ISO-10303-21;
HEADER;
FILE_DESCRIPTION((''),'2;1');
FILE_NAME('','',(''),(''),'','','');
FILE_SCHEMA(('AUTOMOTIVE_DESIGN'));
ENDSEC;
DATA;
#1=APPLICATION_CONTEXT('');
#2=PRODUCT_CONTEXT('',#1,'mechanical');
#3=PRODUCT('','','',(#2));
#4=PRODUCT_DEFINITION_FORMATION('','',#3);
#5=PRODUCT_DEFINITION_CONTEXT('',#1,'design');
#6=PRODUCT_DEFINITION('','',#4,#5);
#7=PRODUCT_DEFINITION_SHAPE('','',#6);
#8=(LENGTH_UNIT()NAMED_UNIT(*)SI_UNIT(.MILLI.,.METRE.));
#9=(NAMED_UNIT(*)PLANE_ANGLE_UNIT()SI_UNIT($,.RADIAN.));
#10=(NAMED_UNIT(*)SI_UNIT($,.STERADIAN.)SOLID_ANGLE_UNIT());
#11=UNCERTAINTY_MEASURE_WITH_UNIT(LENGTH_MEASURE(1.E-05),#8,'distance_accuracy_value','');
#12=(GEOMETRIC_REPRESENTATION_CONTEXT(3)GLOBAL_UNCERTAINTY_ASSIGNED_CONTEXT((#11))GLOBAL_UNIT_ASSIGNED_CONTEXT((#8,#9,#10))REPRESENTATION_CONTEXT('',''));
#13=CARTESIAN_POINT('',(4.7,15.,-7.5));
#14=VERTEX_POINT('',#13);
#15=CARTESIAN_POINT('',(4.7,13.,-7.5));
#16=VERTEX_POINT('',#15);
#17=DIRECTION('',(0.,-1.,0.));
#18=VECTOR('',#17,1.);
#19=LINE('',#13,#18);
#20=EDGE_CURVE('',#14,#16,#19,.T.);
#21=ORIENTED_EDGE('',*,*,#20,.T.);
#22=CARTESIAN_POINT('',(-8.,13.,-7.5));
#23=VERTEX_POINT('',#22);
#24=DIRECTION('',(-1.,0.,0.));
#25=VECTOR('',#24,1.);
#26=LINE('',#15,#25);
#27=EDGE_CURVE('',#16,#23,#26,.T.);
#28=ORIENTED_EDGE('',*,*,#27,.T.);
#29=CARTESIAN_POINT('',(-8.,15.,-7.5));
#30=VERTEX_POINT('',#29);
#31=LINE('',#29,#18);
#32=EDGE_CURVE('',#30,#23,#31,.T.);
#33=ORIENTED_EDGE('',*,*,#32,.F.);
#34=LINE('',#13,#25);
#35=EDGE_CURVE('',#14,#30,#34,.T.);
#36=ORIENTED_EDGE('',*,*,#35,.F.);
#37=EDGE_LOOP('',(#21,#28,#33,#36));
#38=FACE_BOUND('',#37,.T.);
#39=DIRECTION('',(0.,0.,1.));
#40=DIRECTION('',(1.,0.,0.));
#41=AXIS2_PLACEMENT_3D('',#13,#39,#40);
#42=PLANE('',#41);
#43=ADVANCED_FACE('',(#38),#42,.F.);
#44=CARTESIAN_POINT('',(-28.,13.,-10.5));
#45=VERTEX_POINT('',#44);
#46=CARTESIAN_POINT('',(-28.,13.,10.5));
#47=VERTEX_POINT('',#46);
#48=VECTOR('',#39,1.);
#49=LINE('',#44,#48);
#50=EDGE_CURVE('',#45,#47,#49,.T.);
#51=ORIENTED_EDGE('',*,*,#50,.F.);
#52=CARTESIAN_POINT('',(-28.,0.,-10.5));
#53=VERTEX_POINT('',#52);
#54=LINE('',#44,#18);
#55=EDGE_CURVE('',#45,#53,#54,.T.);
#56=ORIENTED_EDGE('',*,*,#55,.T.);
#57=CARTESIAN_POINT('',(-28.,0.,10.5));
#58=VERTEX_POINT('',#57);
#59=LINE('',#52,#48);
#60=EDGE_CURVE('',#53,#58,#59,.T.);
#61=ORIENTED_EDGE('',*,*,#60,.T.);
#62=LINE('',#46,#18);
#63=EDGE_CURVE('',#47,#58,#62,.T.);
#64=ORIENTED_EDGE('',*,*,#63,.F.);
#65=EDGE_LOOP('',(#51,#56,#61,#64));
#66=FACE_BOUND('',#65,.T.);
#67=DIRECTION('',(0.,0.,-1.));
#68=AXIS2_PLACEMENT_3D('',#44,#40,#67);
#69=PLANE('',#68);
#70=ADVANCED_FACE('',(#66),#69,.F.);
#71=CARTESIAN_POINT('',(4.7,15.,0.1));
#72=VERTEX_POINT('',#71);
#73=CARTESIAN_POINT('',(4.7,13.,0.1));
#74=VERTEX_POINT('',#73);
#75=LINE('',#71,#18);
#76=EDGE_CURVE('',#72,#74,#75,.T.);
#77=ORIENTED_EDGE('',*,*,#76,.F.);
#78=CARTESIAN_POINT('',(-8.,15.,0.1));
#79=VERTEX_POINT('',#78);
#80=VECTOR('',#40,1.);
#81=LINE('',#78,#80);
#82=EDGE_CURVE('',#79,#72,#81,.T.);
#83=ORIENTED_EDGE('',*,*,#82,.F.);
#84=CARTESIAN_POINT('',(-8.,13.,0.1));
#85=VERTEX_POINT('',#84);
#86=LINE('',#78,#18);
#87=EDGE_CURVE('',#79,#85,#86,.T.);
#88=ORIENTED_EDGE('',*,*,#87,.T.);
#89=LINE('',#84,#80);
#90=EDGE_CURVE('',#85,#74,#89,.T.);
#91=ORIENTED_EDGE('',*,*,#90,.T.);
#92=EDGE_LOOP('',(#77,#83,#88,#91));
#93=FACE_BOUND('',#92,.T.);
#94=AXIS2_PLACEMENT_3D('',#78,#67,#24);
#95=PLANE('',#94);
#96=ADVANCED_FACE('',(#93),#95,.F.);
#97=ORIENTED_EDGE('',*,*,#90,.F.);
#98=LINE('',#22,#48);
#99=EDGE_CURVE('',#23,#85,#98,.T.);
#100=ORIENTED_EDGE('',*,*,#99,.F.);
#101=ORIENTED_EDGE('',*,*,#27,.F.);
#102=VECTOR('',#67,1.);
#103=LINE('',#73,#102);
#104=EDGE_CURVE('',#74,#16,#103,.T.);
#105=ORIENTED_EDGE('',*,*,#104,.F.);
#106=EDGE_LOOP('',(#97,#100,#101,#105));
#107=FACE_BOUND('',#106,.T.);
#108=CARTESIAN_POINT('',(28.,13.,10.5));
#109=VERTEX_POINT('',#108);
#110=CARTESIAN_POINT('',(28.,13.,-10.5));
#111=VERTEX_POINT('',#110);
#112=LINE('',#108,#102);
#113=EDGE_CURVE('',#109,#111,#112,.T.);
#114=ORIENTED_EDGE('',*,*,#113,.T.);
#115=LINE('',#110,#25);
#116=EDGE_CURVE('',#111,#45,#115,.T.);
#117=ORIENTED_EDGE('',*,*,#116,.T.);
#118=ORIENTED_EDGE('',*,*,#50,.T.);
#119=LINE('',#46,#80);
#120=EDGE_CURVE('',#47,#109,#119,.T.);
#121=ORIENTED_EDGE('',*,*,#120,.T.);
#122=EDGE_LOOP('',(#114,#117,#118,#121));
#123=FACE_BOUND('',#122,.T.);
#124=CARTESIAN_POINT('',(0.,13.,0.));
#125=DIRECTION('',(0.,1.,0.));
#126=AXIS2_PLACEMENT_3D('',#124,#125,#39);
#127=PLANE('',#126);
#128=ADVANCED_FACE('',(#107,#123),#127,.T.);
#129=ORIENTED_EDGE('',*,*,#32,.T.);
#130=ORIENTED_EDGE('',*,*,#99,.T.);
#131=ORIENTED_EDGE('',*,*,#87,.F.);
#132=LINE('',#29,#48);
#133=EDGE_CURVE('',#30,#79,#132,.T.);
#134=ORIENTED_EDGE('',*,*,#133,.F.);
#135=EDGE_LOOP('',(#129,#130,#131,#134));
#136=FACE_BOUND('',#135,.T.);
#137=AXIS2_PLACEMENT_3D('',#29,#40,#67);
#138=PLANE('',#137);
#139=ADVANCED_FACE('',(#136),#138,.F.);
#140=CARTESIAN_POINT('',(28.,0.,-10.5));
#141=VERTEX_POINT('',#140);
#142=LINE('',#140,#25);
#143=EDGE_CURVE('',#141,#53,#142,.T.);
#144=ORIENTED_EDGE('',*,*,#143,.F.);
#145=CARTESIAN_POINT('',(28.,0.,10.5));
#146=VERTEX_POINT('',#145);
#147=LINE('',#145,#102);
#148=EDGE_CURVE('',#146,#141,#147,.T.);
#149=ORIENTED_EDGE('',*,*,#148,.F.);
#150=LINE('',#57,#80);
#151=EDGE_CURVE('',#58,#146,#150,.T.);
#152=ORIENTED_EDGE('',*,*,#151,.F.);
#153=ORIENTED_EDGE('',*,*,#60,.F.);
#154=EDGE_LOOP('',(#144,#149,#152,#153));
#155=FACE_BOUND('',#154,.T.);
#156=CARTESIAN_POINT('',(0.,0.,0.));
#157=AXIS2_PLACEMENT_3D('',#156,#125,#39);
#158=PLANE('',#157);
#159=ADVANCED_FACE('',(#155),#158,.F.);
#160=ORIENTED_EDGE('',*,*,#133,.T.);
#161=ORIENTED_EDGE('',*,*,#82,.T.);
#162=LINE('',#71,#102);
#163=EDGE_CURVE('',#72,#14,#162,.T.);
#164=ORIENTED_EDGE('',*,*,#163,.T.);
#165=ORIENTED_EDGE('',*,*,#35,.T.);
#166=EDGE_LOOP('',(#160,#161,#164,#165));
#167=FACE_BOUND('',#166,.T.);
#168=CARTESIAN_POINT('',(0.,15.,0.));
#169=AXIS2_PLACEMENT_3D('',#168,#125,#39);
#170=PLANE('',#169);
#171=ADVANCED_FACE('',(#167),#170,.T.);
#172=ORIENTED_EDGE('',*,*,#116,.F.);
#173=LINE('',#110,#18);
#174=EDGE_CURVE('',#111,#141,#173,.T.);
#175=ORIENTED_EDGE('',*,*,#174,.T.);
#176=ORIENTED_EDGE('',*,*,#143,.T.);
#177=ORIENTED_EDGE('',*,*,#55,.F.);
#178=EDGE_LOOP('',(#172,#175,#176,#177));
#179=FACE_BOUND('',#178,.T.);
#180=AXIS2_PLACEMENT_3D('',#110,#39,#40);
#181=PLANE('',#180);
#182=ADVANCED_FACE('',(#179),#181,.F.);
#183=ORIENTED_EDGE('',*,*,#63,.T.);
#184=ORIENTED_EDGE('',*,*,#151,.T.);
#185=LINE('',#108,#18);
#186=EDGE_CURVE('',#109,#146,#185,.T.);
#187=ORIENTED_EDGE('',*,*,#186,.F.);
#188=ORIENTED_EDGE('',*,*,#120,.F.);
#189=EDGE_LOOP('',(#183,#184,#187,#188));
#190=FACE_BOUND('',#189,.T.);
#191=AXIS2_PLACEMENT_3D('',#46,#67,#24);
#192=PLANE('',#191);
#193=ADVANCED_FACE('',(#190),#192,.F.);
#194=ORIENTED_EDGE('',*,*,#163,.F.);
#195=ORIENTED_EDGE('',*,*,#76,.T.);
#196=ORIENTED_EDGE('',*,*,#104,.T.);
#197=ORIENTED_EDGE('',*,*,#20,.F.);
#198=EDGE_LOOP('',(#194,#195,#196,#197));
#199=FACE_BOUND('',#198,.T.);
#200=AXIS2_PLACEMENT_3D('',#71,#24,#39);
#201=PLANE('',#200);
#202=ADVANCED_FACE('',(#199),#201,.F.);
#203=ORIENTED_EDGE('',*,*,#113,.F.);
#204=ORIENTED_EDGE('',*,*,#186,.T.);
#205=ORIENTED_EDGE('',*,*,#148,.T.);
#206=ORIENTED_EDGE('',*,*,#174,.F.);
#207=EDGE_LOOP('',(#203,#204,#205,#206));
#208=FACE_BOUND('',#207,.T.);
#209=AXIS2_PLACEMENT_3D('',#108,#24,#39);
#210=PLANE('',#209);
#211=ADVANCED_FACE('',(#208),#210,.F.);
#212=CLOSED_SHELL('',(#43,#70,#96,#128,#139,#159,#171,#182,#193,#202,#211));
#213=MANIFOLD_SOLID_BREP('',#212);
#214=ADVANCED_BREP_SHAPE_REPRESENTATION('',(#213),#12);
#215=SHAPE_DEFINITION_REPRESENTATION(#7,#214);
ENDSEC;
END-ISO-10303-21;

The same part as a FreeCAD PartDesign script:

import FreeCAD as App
import Part
import Sketcher
from FreeCAD import Vector
Q = App.Units.Quantity


def add_polygon(sketch, points):
    """Adds a closed chain of lines whose ends are joined by coincident constraints."""
    first, n = sketch.GeometryCount, len(points)
    for a, b in zip(points, points[1:] + points[:1]):
        sketch.addGeometry(Part.LineSegment(App.Vector(*a, 0), App.Vector(*b, 0)), False)
    for i in range(n):
        sketch.addConstraint(Sketcher.Constraint("Coincident", first + i, 2, first + (i + 1) % n, 1))

doc = App.newDocument("Part")
body = doc.addObject("PartDesign::Body", "Body")

sketch1 = body.newObject("Sketcher::SketchObject", "Sketch")
sketch1.AttachmentSupport = (doc.getObject("XZ_Plane"), [""])
sketch1.MapMode = "FlatFace"
add_polygon(sketch1, [(-28, -10), (-28, 10), (28, 10), (28, -10)])
sketch1.addConstraint(Sketcher.Constraint("Vertical", 0))
sketch1.addConstraint(Sketcher.Constraint("Horizontal", 1))
sketch1.addConstraint(Sketcher.Constraint("Vertical", 2))
sketch1.addConstraint(Sketcher.Constraint("Horizontal", 3))
sketch1.addConstraint(Sketcher.Constraint("Symmetric", 0, 2, 2, 2, -1, 1))
sketch1.addConstraint(Sketcher.Constraint("DistanceX", 1, 1, 1, 2, Q("56 mm")))
sketch1.addConstraint(Sketcher.Constraint("DistanceY", 0, 1, 0, 2, Q("21 mm")))
pad1 = body.newObject("PartDesign::Pad", "Pad")
pad1.Profile = sketch1
pad1.Length = 13
pad1.Reversed = True

sketch2 = body.newObject("Sketcher::SketchObject", "Sketch001")
sketch2.AttachmentSupport = (doc.getObject("XZ_Plane"), [""])
sketch2.MapMode = "FlatFace"
sketch2.AttachmentOffset = App.Placement(Vector(0, 0, -13), App.Rotation())
add_polygon(sketch2, [(-8, -8), (-8, 0), (5, 0), (5, -8)])
sketch2.addConstraint(Sketcher.Constraint("Vertical", 0))
sketch2.addConstraint(Sketcher.Constraint("Horizontal", 1))
sketch2.addConstraint(Sketcher.Constraint("Vertical", 2))
sketch2.addConstraint(Sketcher.Constraint("Horizontal", 3))
sketch2.addConstraint(Sketcher.Constraint("DistanceX", 1, 1, 1, 2, Q("12.7 mm")))
sketch2.addConstraint(Sketcher.Constraint("DistanceY", 0, 1, 0, 2, Q("7.6 mm")))
sketch2.addConstraint(Sketcher.Constraint("DistanceX", 0, 2, -1, 1, Q("8 mm")))
sketch2.addConstraint(Sketcher.Constraint("DistanceY", -1, 1, 0, 2, Q("0.1 mm")))
pad2 = body.newObject("PartDesign::Pad", "Pad001")
pad2.Profile = sketch2
pad2.Length = 2
pad2.Reversed = True

doc.recompute()
